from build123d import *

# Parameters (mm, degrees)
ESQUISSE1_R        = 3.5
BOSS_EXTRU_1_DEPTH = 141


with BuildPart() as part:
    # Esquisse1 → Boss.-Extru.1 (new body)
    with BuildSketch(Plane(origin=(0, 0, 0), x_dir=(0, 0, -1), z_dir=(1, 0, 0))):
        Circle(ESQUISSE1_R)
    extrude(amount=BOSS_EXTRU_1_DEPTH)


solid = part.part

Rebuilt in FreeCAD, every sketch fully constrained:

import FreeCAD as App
import Part
import Sketcher
from FreeCAD import Vector

doc = App.newDocument("Part")
body = doc.addObject("PartDesign::Body", "Body")

# Sketch on YZ plane
sketch1 = body.newObject("Sketcher::SketchObject", "Sketch")
sketch1.AttachmentSupport = (doc.getObject("YZ_Plane"), [""])
sketch1.MapMode = "FlatFace"
sketch1.addGeometry(Part.Circle(Vector(0, 0, 0), Vector(0, 0, 1), 3.5), False)
sketch1.addConstraint([
    Sketcher.Constraint("Coincident", 0, 3, -1, 1),
    Sketcher.Constraint("Diameter", 0, 7.0),
])
pad1 = body.newObject("PartDesign::Pad", "Pad")
pad1.Profile = sketch1
pad1.Length = 141

doc.recompute()
